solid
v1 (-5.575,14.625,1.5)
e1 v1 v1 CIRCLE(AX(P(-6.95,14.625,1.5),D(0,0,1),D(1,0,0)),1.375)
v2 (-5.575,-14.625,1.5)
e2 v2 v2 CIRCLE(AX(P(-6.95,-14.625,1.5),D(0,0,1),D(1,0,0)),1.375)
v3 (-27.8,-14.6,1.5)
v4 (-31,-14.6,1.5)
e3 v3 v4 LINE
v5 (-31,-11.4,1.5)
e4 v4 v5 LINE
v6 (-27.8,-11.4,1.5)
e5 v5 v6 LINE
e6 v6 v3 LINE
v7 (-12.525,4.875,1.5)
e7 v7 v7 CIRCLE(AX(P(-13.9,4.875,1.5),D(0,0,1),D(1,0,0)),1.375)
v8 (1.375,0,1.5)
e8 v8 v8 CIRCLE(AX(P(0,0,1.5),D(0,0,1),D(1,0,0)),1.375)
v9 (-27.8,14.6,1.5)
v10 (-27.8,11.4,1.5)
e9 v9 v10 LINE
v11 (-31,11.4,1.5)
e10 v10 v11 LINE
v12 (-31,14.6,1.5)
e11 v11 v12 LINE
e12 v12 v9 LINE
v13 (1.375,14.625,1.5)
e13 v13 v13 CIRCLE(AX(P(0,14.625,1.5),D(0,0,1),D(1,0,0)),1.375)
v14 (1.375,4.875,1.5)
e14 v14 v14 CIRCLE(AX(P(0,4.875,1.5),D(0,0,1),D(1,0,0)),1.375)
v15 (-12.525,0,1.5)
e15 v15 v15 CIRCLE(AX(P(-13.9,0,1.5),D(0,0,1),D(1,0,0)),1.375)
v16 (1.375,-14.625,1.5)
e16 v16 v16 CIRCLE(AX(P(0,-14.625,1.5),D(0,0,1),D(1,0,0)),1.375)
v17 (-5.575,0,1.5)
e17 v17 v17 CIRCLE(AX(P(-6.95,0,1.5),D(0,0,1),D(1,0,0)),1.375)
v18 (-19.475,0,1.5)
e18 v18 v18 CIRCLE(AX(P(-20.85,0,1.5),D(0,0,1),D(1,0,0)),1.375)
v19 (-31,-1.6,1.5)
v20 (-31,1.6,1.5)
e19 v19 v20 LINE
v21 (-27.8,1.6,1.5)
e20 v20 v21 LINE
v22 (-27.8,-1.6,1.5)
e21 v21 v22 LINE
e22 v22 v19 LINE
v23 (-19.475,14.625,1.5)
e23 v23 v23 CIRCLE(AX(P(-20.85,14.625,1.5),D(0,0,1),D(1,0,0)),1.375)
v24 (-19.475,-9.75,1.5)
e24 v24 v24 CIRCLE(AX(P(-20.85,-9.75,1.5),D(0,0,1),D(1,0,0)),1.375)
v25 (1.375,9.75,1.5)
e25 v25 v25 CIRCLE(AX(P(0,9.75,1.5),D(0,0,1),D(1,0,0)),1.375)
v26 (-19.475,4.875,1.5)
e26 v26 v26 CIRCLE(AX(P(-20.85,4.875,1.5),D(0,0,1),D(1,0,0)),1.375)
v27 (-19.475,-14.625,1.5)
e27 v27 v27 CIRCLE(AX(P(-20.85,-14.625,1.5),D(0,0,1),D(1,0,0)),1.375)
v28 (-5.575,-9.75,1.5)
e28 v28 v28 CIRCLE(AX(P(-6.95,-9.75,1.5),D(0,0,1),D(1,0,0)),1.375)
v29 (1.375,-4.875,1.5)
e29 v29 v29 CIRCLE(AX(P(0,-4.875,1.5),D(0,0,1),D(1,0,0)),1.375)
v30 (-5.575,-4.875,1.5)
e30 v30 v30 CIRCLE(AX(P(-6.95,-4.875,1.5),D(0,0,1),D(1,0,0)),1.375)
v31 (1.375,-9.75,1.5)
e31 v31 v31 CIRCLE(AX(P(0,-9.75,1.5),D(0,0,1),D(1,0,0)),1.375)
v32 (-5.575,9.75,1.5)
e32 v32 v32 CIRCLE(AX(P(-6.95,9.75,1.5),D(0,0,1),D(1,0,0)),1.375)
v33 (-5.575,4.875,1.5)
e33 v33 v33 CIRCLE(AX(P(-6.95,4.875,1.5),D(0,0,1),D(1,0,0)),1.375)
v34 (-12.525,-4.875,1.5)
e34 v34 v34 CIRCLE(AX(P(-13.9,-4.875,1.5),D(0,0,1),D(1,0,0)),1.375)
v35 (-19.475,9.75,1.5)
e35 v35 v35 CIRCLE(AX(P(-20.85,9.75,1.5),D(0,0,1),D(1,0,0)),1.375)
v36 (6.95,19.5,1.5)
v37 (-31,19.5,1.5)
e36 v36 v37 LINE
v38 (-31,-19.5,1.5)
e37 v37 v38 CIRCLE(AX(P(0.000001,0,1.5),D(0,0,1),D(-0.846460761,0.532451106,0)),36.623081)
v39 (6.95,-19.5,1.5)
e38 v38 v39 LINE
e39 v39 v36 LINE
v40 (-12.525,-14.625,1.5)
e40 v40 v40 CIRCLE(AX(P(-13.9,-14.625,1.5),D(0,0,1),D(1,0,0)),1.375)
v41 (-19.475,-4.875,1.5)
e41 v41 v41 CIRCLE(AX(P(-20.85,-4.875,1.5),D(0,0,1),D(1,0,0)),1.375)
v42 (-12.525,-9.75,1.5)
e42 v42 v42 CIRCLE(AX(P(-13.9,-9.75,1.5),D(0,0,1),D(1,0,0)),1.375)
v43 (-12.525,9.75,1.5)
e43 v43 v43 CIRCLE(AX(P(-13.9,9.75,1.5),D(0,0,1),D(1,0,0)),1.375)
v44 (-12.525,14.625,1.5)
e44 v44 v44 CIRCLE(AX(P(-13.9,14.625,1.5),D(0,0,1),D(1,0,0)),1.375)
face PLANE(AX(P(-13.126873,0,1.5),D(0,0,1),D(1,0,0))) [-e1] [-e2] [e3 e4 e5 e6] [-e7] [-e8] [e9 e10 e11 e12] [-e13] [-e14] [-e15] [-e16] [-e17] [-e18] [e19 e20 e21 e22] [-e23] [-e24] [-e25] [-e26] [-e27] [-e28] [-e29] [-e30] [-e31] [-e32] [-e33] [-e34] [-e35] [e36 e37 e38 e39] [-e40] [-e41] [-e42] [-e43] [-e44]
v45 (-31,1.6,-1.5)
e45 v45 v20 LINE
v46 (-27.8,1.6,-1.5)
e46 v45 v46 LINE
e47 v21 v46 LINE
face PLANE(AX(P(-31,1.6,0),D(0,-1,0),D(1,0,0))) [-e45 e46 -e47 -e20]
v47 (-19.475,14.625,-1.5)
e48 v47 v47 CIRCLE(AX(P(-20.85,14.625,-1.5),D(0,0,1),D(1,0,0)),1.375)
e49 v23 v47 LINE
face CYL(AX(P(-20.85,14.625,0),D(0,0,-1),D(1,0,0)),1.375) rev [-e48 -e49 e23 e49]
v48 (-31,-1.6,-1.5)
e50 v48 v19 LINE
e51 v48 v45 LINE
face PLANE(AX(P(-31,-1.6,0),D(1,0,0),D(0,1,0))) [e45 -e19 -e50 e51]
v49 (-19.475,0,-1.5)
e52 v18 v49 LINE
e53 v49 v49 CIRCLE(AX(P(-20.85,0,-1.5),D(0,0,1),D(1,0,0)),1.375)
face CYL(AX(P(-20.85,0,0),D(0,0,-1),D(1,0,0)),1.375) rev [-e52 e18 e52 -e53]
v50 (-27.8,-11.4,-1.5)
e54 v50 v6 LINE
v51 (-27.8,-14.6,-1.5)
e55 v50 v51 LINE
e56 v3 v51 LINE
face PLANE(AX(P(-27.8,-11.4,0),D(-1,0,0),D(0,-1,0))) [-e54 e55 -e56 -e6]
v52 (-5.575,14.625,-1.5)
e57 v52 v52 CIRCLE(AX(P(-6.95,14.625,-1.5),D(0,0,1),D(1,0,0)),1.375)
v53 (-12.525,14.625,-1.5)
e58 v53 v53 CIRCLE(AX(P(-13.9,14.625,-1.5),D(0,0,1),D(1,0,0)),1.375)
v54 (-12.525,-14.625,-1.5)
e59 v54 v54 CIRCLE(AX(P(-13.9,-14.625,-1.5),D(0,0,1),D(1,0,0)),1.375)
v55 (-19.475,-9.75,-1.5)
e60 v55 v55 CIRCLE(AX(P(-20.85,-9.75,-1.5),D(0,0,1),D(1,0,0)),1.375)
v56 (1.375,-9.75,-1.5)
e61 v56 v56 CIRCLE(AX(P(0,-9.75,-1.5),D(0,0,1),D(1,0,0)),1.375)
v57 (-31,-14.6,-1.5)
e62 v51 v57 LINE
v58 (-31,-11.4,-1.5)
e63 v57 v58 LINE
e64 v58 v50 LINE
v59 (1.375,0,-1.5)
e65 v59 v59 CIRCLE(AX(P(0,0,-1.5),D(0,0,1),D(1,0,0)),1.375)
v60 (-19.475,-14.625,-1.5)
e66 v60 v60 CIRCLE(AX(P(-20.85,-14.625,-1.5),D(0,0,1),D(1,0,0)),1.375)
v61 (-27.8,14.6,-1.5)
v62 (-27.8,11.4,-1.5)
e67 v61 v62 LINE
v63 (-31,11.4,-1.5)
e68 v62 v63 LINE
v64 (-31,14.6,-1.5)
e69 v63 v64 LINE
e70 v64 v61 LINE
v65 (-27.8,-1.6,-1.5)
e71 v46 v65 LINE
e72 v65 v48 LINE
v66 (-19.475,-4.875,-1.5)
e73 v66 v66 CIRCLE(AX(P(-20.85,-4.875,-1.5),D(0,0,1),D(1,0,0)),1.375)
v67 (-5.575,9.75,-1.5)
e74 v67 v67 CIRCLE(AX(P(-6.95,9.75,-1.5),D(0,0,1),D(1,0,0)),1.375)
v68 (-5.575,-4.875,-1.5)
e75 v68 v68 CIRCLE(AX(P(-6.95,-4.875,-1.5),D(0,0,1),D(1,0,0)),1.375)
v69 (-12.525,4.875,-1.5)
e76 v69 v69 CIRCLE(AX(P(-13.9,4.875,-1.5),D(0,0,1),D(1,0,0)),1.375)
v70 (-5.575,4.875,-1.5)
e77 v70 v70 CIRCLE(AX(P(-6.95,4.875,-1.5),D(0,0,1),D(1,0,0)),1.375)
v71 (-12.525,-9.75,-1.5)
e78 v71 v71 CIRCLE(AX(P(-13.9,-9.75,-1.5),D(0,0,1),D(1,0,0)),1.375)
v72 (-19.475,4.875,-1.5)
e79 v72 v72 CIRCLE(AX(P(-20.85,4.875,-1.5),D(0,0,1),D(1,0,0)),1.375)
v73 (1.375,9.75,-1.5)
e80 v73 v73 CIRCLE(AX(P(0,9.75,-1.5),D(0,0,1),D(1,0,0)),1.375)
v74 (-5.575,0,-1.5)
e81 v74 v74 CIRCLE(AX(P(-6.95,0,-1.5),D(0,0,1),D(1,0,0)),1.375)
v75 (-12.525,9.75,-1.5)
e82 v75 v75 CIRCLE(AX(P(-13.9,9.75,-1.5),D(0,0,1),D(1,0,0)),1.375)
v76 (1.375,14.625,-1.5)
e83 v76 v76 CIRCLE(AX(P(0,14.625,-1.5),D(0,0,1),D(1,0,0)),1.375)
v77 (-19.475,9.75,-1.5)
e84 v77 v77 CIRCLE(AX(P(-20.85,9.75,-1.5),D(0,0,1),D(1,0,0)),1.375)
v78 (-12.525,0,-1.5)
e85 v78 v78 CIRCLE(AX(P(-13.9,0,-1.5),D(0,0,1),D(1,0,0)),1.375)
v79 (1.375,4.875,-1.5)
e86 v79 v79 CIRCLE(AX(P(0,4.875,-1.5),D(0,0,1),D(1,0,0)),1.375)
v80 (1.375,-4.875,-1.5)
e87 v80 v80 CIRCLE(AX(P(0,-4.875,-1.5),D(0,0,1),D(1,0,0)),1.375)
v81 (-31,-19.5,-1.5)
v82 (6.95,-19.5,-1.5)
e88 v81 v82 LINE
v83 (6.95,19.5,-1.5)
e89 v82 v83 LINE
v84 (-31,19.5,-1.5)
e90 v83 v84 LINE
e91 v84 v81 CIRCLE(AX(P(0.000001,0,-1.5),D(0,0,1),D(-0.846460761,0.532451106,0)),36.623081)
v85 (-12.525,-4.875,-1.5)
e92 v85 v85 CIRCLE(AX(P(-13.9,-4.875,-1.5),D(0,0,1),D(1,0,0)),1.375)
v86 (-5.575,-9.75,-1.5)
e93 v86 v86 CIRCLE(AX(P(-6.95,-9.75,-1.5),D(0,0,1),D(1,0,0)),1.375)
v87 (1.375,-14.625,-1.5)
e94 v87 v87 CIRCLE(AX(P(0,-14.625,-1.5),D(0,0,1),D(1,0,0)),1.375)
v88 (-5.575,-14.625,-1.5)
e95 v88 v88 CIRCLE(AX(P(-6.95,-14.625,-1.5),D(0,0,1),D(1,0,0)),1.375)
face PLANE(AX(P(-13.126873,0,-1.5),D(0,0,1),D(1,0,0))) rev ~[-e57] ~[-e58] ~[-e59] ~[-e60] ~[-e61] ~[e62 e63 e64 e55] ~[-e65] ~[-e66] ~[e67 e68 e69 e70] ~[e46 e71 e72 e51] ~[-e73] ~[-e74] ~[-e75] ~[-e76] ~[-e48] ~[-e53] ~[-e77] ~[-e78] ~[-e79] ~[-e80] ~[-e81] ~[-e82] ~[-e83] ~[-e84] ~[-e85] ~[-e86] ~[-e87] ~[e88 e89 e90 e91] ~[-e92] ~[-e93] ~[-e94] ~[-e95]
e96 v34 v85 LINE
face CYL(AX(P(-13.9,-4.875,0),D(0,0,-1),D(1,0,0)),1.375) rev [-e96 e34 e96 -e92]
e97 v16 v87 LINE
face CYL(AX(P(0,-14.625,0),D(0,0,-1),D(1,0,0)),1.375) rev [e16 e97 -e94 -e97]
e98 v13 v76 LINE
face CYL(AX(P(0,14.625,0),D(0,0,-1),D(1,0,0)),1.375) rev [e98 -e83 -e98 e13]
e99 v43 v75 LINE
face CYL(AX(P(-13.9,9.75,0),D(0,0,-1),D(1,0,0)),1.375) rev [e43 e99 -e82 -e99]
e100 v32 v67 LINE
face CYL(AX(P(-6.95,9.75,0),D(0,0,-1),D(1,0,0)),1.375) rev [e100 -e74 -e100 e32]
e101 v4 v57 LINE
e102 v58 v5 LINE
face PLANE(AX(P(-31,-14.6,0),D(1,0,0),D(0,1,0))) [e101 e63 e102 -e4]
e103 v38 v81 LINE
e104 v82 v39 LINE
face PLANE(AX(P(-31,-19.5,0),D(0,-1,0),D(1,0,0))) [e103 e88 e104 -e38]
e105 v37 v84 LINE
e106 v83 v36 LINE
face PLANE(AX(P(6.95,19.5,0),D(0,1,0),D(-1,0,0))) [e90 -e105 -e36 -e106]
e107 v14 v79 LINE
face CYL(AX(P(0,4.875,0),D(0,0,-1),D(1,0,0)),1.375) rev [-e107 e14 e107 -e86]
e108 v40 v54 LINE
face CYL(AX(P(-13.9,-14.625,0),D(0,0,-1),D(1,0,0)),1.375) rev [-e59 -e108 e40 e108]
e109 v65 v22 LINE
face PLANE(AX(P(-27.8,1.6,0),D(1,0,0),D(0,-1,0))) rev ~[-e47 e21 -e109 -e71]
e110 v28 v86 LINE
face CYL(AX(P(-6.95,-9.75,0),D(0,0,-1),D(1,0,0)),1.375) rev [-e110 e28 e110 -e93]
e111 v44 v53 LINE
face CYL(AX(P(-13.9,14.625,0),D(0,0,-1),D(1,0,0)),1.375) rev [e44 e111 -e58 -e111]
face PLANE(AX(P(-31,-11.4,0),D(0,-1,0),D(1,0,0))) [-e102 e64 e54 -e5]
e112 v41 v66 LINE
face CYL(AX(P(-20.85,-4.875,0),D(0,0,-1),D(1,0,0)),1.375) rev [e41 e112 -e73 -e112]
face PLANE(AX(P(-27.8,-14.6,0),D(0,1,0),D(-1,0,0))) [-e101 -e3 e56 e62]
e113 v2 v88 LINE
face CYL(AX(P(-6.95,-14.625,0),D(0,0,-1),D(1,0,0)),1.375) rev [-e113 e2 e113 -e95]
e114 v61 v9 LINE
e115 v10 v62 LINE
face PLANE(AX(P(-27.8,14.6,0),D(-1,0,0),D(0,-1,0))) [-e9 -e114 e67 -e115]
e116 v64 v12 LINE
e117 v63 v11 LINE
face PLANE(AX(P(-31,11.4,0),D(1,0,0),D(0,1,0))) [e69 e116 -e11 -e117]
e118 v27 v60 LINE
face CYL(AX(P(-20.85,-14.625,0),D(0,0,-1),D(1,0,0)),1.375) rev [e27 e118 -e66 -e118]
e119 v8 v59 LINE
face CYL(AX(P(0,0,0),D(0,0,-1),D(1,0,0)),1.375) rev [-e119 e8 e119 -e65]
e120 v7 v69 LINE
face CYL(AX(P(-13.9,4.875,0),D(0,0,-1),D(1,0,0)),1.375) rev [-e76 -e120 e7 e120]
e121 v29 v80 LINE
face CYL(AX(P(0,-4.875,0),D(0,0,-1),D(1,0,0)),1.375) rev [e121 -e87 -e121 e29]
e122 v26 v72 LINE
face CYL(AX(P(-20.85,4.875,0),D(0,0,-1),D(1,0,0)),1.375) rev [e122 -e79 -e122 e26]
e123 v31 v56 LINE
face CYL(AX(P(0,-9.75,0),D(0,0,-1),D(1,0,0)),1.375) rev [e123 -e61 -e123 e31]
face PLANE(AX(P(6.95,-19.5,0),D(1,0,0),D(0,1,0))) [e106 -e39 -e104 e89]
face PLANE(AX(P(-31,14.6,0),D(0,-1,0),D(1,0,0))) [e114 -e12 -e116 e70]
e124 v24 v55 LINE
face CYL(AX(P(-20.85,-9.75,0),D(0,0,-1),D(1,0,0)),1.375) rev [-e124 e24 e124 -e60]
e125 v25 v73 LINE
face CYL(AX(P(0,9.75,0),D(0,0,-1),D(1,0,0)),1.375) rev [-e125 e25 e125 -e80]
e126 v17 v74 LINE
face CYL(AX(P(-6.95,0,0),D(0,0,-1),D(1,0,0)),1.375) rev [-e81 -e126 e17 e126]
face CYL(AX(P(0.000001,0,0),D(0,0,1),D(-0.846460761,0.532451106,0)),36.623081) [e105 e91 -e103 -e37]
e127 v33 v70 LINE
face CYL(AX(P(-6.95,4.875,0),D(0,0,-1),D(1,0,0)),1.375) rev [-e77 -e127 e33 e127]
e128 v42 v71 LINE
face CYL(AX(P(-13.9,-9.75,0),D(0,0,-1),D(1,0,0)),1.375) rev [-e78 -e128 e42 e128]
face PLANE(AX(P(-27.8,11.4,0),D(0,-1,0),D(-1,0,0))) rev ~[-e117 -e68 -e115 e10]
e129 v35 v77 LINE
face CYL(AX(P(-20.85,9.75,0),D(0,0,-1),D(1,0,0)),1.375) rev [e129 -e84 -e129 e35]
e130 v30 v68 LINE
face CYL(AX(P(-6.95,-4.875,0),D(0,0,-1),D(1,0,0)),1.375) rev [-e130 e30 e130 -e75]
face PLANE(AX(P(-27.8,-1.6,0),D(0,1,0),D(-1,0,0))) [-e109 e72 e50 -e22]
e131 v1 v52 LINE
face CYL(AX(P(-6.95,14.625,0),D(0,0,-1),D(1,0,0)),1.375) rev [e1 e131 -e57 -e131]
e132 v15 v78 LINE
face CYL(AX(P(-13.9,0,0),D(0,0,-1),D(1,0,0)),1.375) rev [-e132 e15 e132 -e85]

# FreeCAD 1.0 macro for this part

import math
import FreeCAD as App
import Part
import Sketcher

V = App.Vector


def add_polygon(sketch, points):
    """Adds a closed chain of lines whose ends are joined by coincident constraints."""
    first, n = sketch.GeometryCount, len(points)
    for a, b in zip(points, points[1:] + points[:1]):
        sketch.addGeometry(Part.LineSegment(App.Vector(*a, 0), App.Vector(*b, 0)), False)
    for i in range(n):
        sketch.addConstraint(Sketcher.Constraint("Coincident", first + i, 2, first + (i + 1) % n, 1))

doc = App.newDocument("Part")
params = doc.addObject("Spreadsheet::Sheet", "Params")
for row, (alias, value) in enumerate([
    ("sketch1_diameter", "2.75 mm"),
    ("sketch1_height", "39 mm"),
    ("sketch1_width", "3.2 mm"),
    ("sketch1_width2", "37.95 mm"),
    ("pad1_length", "3 mm"),
], start=1):
    params.set(f"A{row}", alias)
    params.set(f"B{row}", "=" + value)
    params.setAlias(f"B{row}", alias)

body = doc.addObject("PartDesign::Body", "Body")

# Sketch on XY plane
sketch1 = doc.addObject("Sketcher::SketchObject", "Sketch")
body.addObject(sketch1)
sketch1.AttachmentSupport = (doc.XY_Plane, [""])
sketch1.MapMode = "FlatFace"
sketch1.addGeometry(Part.LineSegment(V(-31, -19.5, 0), V(7, -19.5, 0)), False)  # 0
sketch1.addGeometry(Part.LineSegment(V(7, -19.5, 0), V(7, 19.5, 0)), False)  # 1
sketch1.addGeometry(Part.LineSegment(V(7, 19.5, 0), V(-31, 19.5, 0)), False)  # 2
sketch1.addGeometry(Part.ArcOfCircle(Part.Circle(V(0, 0, 0), V(0, 0, 1), 36.6), math.radians(148), math.radians(212)), False)  # 3
add_polygon(sketch1, [(-31, -14.6), (-31, -11.4), (-27.8, -11.4), (-27.8, -14.6)])  # lines 4-7
sketch1.addGeometry(Part.Circle(V(-20.9, -14.6, 0), V(0, 0, 1), 1.4), False)  # 8
sketch1.addGeometry(Part.Circle(V(-20.9, -9.8, 0), V(0, 0, 1), 1.4), False)  # 9
sketch1.addGeometry(Part.Circle(V(-20.9, -4.9, 0), V(0, 0, 1), 1.4), False)  # 10
sketch1.addGeometry(Part.Circle(V(-13.9, -14.6, 0), V(0, 0, 1), 1.4), False)  # 11
sketch1.addGeometry(Part.Circle(V(-7, -14.6, 0), V(0, 0, 1), 1.4), False)  # 12
sketch1.addGeometry(Part.Circle(V(-13.9, -9.8, 0), V(0, 0, 1), 1.4), False)  # 13
sketch1.addGeometry(Part.Circle(V(-7, -9.8, 0), V(0, 0, 1), 1.4), False)  # 14
sketch1.addGeometry(Part.Circle(V(0, -14.6, 0), V(0, 0, 1), 1.4), False)  # 15
sketch1.addGeometry(Part.Circle(V(0, -9.8, 0), V(0, 0, 1), 1.4), False)  # 16
sketch1.addGeometry(Part.Circle(V(-13.9, -4.9, 0), V(0, 0, 1), 1.4), False)  # 17
sketch1.addGeometry(Part.Circle(V(-7, -4.9, 0), V(0, 0, 1), 1.4), False)  # 18
sketch1.addGeometry(Part.Circle(V(0, -4.9, 0), V(0, 0, 1), 1.4), False)  # 19
add_polygon(sketch1, [(-31, -1.6), (-31, 1.6), (-27.8, 1.6), (-27.8, -1.6)])  # lines 20-23
sketch1.addGeometry(Part.Circle(V(-20.9, 0, 0), V(0, 0, 1), 1.4), False)  # 24
sketch1.addGeometry(Part.Circle(V(-20.9, 4.9, 0), V(0, 0, 1), 1.4), False)  # 25
add_polygon(sketch1, [(-31, 14.6), (-27.8, 14.6), (-27.8, 11.4), (-31, 11.4)])  # lines 26-29
sketch1.addGeometry(Part.Circle(V(-20.9, 9.8, 0), V(0, 0, 1), 1.4), False)  # 30
sketch1.addGeometry(Part.Circle(V(-20.9, 14.6, 0), V(0, 0, 1), 1.4), False)  # 31
sketch1.addGeometry(Part.Circle(V(-13.9, 0, 0), V(0, 0, 1), 1.4), False)  # 32
sketch1.addGeometry(Part.Circle(V(-7, 0, 0), V(0, 0, 1), 1.4), False)  # 33
sketch1.addGeometry(Part.Circle(V(-13.9, 4.9, 0), V(0, 0, 1), 1.4), False)  # 34
sketch1.addGeometry(Part.Circle(V(-7, 4.9, 0), V(0, 0, 1), 1.4), False)  # 35
sketch1.addGeometry(Part.Circle(V(0, 0, 0), V(0, 0, 1), 1.4), False)  # 36
sketch1.addGeometry(Part.Circle(V(0, 4.9, 0), V(0, 0, 1), 1.4), False)  # 37
sketch1.addGeometry(Part.Circle(V(-13.9, 9.8, 0), V(0, 0, 1), 1.4), False)  # 38
sketch1.addGeometry(Part.Circle(V(-7, 9.8, 0), V(0, 0, 1), 1.4), False)  # 39
sketch1.addGeometry(Part.Circle(V(-13.9, 14.6, 0), V(0, 0, 1), 1.4), False)  # 40
sketch1.addGeometry(Part.Circle(V(-7, 14.6, 0), V(0, 0, 1), 1.4), False)  # 41
sketch1.addGeometry(Part.Circle(V(0, 9.8, 0), V(0, 0, 1), 1.4), False)  # 42
sketch1.addGeometry(Part.Circle(V(0, 14.6, 0), V(0, 0, 1), 1.4), False)  # 43
sketch1.addConstraint([
    Sketcher.Constraint("Coincident", 0, 2, 1, 1),
    Sketcher.Constraint("Coincident", 1, 2, 2, 1),
    Sketcher.Constraint("Coincident", 2, 2, 3, 1),
    Sketcher.Constraint("Coincident", 3, 2, 0, 1),
    Sketcher.Constraint("Horizontal", 0),
    Sketcher.Constraint("Vertical", 1),
    Sketcher.Constraint("Horizontal", 2),
    Sketcher.Constraint("Vertical", 4),
    Sketcher.Constraint("Horizontal", 5),
    Sketcher.Constraint("Vertical", 6),
    Sketcher.Constraint("Horizontal", 7),
    Sketcher.Constraint("Vertical", 20),
    Sketcher.Constraint("Horizontal", 21),
    Sketcher.Constraint("Vertical", 22),
    Sketcher.Constraint("Horizontal", 23),
    Sketcher.Constraint("Horizontal", 26),
    Sketcher.Constraint("Vertical", 27),
    Sketcher.Constraint("Horizontal", 28),
    Sketcher.Constraint("Vertical", 29),
    Sketcher.Constraint("Coincident", 3, 3, -1, 1),
    Sketcher.Constraint("Coincident", 36, 3, -1, 1),
    Sketcher.Constraint("Equal", 8, 9),
    Sketcher.Constraint("Equal", 9, 10),
    Sketcher.Constraint("Equal", 10, 11),
    Sketcher.Constraint("Equal", 11, 12),
    Sketcher.Constraint("Equal", 12, 13),
    Sketcher.Constraint("Equal", 13, 14),
    Sketcher.Constraint("Equal", 14, 15),
    Sketcher.Constraint("Equal", 15, 16),
    Sketcher.Constraint("Equal", 16, 17),
    Sketcher.Constraint("Equal", 17, 18),
    Sketcher.Constraint("Equal", 18, 19),
    Sketcher.Constraint("Equal", 19, 24),
    Sketcher.Constraint("Equal", 24, 25),
    Sketcher.Constraint("Equal", 25, 30),
    Sketcher.Constraint("Equal", 30, 31),
    Sketcher.Constraint("Equal", 31, 32),
    Sketcher.Constraint("Equal", 32, 33),
    Sketcher.Constraint("Equal", 33, 34),
    Sketcher.Constraint("Equal", 34, 35),
    Sketcher.Constraint("Equal", 35, 36),
    Sketcher.Constraint("Equal", 36, 37),
    Sketcher.Constraint("Equal", 37, 38),
    Sketcher.Constraint("Equal", 38, 39),
    Sketcher.Constraint("Equal", 39, 40),
    Sketcher.Constraint("Equal", 40, 41),
    Sketcher.Constraint("Equal", 41, 42),
    Sketcher.Constraint("Equal", 42, 43),
    Sketcher.Constraint("Symmetric", 19, 3, 37, 3, -1, 1),
    Sketcher.Constraint("Symmetric", 16, 3, 42, 3, -1, 1),
    Sketcher.Constraint("Symmetric", 15, 3, 43, 3, -1, 1),
    Sketcher.Constraint("Symmetric", 10, 3, 25, 3, -1),
    Sketcher.Constraint("Symmetric", 9, 3, 30, 3, -1),
    Sketcher.Constraint("Symmetric", 8, 3, 31, 3, -1),
    Sketcher.Constraint("Symmetric", 17, 3, 34, 3, -1),
    Sketcher.Constraint("Symmetric", 18, 3, 35, 3, -1),
    Sketcher.Constraint("Symmetric", 13, 3, 38, 3, -1),
    Sketcher.Constraint("Symmetric", 14, 3, 39, 3, -1),
    Sketcher.Constraint("Symmetric", 11, 3, 40, 3, -1),
    Sketcher.Constraint("Symmetric", 12, 3, 41, 3, -1),
    Sketcher.Constraint("Symmetric", 6, 2, 26, 2, -1),
    Sketcher.Constraint("Symmetric", 4, 2, 28, 2, -1),
    Sketcher.Constraint("PointOnObject", 15, 3, -2),
    Sketcher.Constraint("PointOnObject", 16, 3, -2),
    Sketcher.Constraint("PointOnObject", 19, 3, -2),
    Sketcher.Constraint("PointOnObject", 24, 3, -1),
    Sketcher.Constraint("PointOnObject", 32, 3, -1),
    Sketcher.Constraint("PointOnObject", 33, 3, -1),
    Sketcher.Constraint("Horizontal", 8, 3, 11, 3),
    Sketcher.Constraint("Horizontal", 11, 3, 12, 3),
    Sketcher.Constraint("Horizontal", 9, 3, 13, 3),
    Sketcher.Constraint("Horizontal", 13, 3, 14, 3),
    Sketcher.Constraint("Horizontal", 12, 3, 15, 3),
    Sketcher.Constraint("Horizontal", 14, 3, 16, 3),
    Sketcher.Constraint("Horizontal", 10, 3, 17, 3),
    Sketcher.Constraint("Horizontal", 17, 3, 18, 3),
    Sketcher.Constraint("Horizontal", 18, 3, 19, 3),
    Sketcher.Constraint("Vertical", 8, 3, 9, 3),
    Sketcher.Constraint("Vertical", 9, 3, 10, 3),
    Sketcher.Constraint("Vertical", 11, 3, 13, 3),
    Sketcher.Constraint("Vertical", 12, 3, 14, 3),
    Sketcher.Constraint("Vertical", 13, 3, 17, 3),
    Sketcher.Constraint("Vertical", 14, 3, 18, 3),
    Sketcher.Constraint("Vertical", 10, 3, 24, 3),
    Sketcher.Constraint("Vertical", 17, 3, 32, 3),
    Sketcher.Constraint("Vertical", 18, 3, 33, 3),
    Sketcher.Constraint("Vertical", 2, 2, 3, 2),
    Sketcher.Constraint("Vertical", 3, 2, 4, 2),
    Sketcher.Constraint("Vertical", 7, 2, 20, 2),
    Sketcher.Constraint("Vertical", 6, 2, 21, 2),
    Sketcher.Constraint("Equal", 28, 4),
    Sketcher.Constraint("Equal", 6, 20),
    Sketcher.Constraint("Diameter", 8, 2.75),
    Sketcher.Constraint("DistanceY", 1, 1, 1, 2, 39.0),
    Sketcher.Constraint("DistanceX", 5, 1, 5, 2, 3.2),
    Sketcher.Constraint("DistanceX", 2, 2, -1, 1, 31.0),
    Sketcher.Constraint("DistanceY", 4, 2, 20, 2, 13.0),
    Sketcher.Constraint("DistanceY", 21, 2, 26, 2, 13.0),
    Sketcher.Constraint("DistanceX", 0, 1, 0, 2, 37.95),
    Sketcher.Constraint("DistanceX", 11, 3, -1, 1, 13.9),
    Sketcher.Constraint("DistanceX", 8, 3, 12, 3, 13.9),
    Sketcher.Constraint("DistanceY", 9, 3, 30, 3, 19.5),
    Sketcher.Constraint("DistanceY", 10, 3, 31, 3, 19.5),
    Sketcher.Constraint("DistanceX", 12, 3, 0, 2, 13.9),
    Sketcher.Constraint("DistanceY", 8, 3, 10, 3, 9.75),
])
sketch1.setExpression("Constraints[104]", "Params.sketch1_diameter")
sketch1.setExpression("Constraints[105]", "Params.sketch1_height")
sketch1.setExpression("Constraints[106]", "Params.sketch1_width")
sketch1.setExpression("Constraints[110]", "Params.sketch1_width2")
pad1 = doc.addObject("PartDesign::Pad", "Pad")
body.addObject(pad1)
pad1.Profile = sketch1
pad1.setExpression("Length", "Params.pad1_length")
pad1.Midplane = True

doc.recompute()
